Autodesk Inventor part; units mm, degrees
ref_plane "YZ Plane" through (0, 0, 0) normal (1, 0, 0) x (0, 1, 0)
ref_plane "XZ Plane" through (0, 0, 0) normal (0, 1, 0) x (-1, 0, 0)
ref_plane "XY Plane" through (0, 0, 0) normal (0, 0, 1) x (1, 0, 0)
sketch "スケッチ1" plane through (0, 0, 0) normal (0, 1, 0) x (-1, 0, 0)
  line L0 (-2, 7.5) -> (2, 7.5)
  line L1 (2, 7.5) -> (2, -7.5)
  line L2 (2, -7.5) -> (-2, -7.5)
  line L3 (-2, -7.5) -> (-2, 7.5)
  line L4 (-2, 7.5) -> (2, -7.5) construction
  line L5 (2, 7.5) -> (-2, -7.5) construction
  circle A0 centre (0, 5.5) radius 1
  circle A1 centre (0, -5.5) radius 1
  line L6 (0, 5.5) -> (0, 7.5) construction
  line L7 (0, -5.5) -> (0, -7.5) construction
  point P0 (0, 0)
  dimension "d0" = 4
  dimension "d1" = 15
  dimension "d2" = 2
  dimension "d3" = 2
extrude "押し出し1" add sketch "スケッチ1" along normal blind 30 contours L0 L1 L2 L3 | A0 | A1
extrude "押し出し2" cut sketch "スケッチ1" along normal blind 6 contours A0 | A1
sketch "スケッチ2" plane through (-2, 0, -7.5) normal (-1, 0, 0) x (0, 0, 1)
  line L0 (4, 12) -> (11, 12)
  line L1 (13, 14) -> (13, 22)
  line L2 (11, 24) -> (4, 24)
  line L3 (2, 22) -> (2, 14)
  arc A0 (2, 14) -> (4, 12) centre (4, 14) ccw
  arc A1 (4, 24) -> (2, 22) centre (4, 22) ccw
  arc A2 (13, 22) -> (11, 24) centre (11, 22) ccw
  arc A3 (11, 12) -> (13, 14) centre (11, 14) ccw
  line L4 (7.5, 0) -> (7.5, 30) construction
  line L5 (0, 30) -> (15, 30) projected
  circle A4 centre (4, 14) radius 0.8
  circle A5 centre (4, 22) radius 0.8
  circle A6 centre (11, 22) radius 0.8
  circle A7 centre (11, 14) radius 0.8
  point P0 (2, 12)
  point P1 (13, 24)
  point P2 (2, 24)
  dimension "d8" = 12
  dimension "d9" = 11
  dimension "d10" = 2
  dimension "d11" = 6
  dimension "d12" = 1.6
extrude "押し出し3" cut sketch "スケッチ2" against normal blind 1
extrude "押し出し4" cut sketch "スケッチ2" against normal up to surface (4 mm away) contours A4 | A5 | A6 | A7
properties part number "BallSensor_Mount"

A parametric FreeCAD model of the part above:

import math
import FreeCAD as App
import Part
import Sketcher
from FreeCAD import Vector

doc = App.newDocument("Part")
body = doc.addObject("PartDesign::Body", "Body")

# Sketch on XZ plane
sketch1 = body.newObject("Sketcher::SketchObject", "Sketch")
sketch1.AttachmentSupport = (doc.getObject("XZ_Plane"), [""])
sketch1.MapMode = "FlatFace"
sketch1.addGeometry([
    Part.LineSegment(Vector(-2, 7.5, 0), Vector(2, 7.5, 0)),
    Part.LineSegment(Vector(2, 7.5, 0), Vector(2, -7.5, 0)),
    Part.LineSegment(Vector(2, -7.5, 0), Vector(-2, -7.5, 0)),
    Part.LineSegment(Vector(-2, -7.5, 0), Vector(-2, 7.5, 0)),
], False)
sketch1.addConstraint([
    Sketcher.Constraint("Coincident", 0, 2, 1, 1),
    Sketcher.Constraint("Coincident", 1, 2, 2, 1),
    Sketcher.Constraint("Coincident", 2, 2, 3, 1),
    Sketcher.Constraint("Coincident", 3, 2, 0, 1),
    Sketcher.Constraint("Horizontal", 0),
    Sketcher.Constraint("Vertical", 1),
    Sketcher.Constraint("Horizontal", 2),
    Sketcher.Constraint("Vertical", 3),
    Sketcher.Constraint("Symmetric", 0, 2, 2, 2, -1, 1),
    Sketcher.Constraint("DistanceX", 0, 1, 0, 2, 4.0),
    Sketcher.Constraint("DistanceY", 1, 2, 1, 1, 15.0),
])
pad1 = body.newObject("PartDesign::Pad", "Pad")
pad1.Profile = sketch1
pad1.Length = 30
pad1.Reversed = True

# Sketch on XZ plane
sketch2 = body.newObject("Sketcher::SketchObject", "Sketch001")
sketch2.AttachmentSupport = (doc.getObject("XZ_Plane"), [""])
sketch2.MapMode = "FlatFace"
sketch2.addGeometry([
    Part.Circle(Vector(0, 5.5, 0), Vector(0, 0, 1), 1),
    Part.Circle(Vector(0, -5.5, 0), Vector(0, 0, 1), 1),
], False)
sketch2.addConstraint([
    Sketcher.Constraint("Equal", 0, 1),
    Sketcher.Constraint("Symmetric", 0, 3, 1, 3, -1, 1),
    Sketcher.Constraint("PointOnObject", 0, 3, -2),
    Sketcher.Constraint("Diameter", 0, 2.0),
    Sketcher.Constraint("DistanceY", 1, 3, 0, 3, 11.0),
])
pocket1 = body.newObject("PartDesign::Pocket", "Pocket")
pocket1.Profile = sketch2
pocket1.Length = 6

# Sketch on YZ plane
sketch3 = body.newObject("Sketcher::SketchObject", "Sketch002")
sketch3.AttachmentSupport = (doc.getObject("YZ_Plane"), [""])
sketch3.MapMode = "FlatFace"
sketch3.AttachmentOffset = App.Placement(Vector(0, 0, -2), App.Rotation())
sketch3.addGeometry([
    Part.ArcOfCircle(Part.Circle(Vector(14, -3.5, 0), Vector(0, 0, 1), 2), math.radians(180), math.radians(270)),  # 0
    Part.LineSegment(Vector(12, -3.5, 0), Vector(12, 3.5, 0)),  # 1
    Part.ArcOfCircle(Part.Circle(Vector(14, 3.5, 0), Vector(0, 0, 1), 2), math.radians(90), math.radians(180)),  # 2
    Part.LineSegment(Vector(14, 5.5, 0), Vector(22, 5.5, 0)),  # 3
    Part.ArcOfCircle(Part.Circle(Vector(22, 3.5, 0), Vector(0, 0, 1), 2), math.radians(0), math.radians(90)),  # 4
    Part.LineSegment(Vector(24, 3.5, 0), Vector(24, -3.5, 0)),  # 5
    Part.ArcOfCircle(Part.Circle(Vector(22, -3.5, 0), Vector(0, 0, 1), 2), math.radians(-90), math.radians(0)),  # 6
    Part.LineSegment(Vector(22, -5.5, 0), Vector(14, -5.5, 0)),  # 7
    Part.Circle(Vector(14, -3.5, 0), Vector(0, 0, 1), 0.8),  # 8
    Part.Circle(Vector(14, 3.5, 0), Vector(0, 0, 1), 0.8),  # 9
    Part.Circle(Vector(22, -3.5, 0), Vector(0, 0, 1), 0.8),  # 10
    Part.Circle(Vector(22, 3.5, 0), Vector(0, 0, 1), 0.8),  # 11
], False)
sketch3.addConstraint([
    Sketcher.Constraint("Tangent", 0, 1, 1, 1),
    Sketcher.Constraint("Tangent", 1, 2, 2, 2),
    Sketcher.Constraint("Tangent", 2, 1, 3, 1),
    Sketcher.Constraint("Tangent", 3, 2, 4, 2),
    Sketcher.Constraint("Tangent", 4, 1, 5, 1),
    Sketcher.Constraint("Tangent", 5, 2, 6, 2),
    Sketcher.Constraint("Tangent", 6, 1, 7, 1),
    Sketcher.Constraint("Tangent", 7, 2, 0, 2),
    Sketcher.Constraint("Vertical", 1),
    Sketcher.Constraint("Horizontal", 3),
    Sketcher.Constraint("Vertical", 5),
    Sketcher.Constraint("Horizontal", 7),
    Sketcher.Constraint("Coincident", 8, 3, 0, 3),
    Sketcher.Constraint("Coincident", 9, 3, 2, 3),
    Sketcher.Constraint("Coincident", 10, 3, 6, 3),
    Sketcher.Constraint("Coincident", 11, 3, 4, 3),
    Sketcher.Constraint("Equal", 0, 2),
    Sketcher.Constraint("Equal", 2, 4),
    Sketcher.Constraint("Equal", 4, 6),
    Sketcher.Constraint("Equal", 8, 9),
    Sketcher.Constraint("Equal", 9, 10),
    Sketcher.Constraint("Equal", 10, 11),
    Sketcher.Constraint("Radius", 0, 2.0),
    Sketcher.Constraint("Diameter", 8, 1.6),
    Sketcher.Constraint("DistanceX", -1, 1, 0, 1, 12.0),
    Sketcher.Constraint("DistanceX", 3, 1, 3, 2, 8.0),
    Sketcher.Constraint("DistanceY", 1, 1, 1, 2, 7.0),
    Sketcher.Constraint("DistanceY", 0, 3, -1, 1, 3.5),
])
pocket2 = body.newObject("PartDesign::Pocket", "Pocket001")
pocket2.Profile = sketch3
pocket2.Length = 1
pocket2.Reversed = True

# Sketch on YZ plane
sketch4 = body.newObject("Sketcher::SketchObject", "Sketch003")
sketch4.AttachmentSupport = (doc.getObject("YZ_Plane"), [""])
sketch4.MapMode = "FlatFace"
sketch4.AttachmentOffset = App.Placement(Vector(0, 0, -2), App.Rotation())
sketch4.addGeometry([
    Part.Circle(Vector(14, -3.5, 0), Vector(0, 0, 1), 0.8),
    Part.Circle(Vector(22, -3.5, 0), Vector(0, 0, 1), 0.8),
    Part.Circle(Vector(22, 3.5, 0), Vector(0, 0, 1), 0.8),
    Part.Circle(Vector(14, 3.5, 0), Vector(0, 0, 1), 0.8),
], False)
sketch4.addConstraint([
    Sketcher.Constraint("Equal", 0, 1),
    Sketcher.Constraint("Equal", 1, 2),
    Sketcher.Constraint("Equal", 2, 3),
    Sketcher.Constraint("Symmetric", 1, 3, 2, 3, -1),
    Sketcher.Constraint("Symmetric", 0, 3, 3, 3, -1),
    Sketcher.Constraint("Horizontal", 0, 3, 1, 3),
    Sketcher.Constraint("Diameter", 0, 1.6),
    Sketcher.Constraint("DistanceX", -1, 1, 0, 3, 14.0),
    Sketcher.Constraint("DistanceX", -1, 1, 1, 3, 22.0),
    Sketcher.Constraint("DistanceY", 1, 3, 2, 3, 7.0),
])
pocket3 = body.newObject("PartDesign::Pocket", "Pocket002")
pocket3.Profile = sketch4
pocket3.Length = 4
pocket3.Reversed = True

doc.recompute()
